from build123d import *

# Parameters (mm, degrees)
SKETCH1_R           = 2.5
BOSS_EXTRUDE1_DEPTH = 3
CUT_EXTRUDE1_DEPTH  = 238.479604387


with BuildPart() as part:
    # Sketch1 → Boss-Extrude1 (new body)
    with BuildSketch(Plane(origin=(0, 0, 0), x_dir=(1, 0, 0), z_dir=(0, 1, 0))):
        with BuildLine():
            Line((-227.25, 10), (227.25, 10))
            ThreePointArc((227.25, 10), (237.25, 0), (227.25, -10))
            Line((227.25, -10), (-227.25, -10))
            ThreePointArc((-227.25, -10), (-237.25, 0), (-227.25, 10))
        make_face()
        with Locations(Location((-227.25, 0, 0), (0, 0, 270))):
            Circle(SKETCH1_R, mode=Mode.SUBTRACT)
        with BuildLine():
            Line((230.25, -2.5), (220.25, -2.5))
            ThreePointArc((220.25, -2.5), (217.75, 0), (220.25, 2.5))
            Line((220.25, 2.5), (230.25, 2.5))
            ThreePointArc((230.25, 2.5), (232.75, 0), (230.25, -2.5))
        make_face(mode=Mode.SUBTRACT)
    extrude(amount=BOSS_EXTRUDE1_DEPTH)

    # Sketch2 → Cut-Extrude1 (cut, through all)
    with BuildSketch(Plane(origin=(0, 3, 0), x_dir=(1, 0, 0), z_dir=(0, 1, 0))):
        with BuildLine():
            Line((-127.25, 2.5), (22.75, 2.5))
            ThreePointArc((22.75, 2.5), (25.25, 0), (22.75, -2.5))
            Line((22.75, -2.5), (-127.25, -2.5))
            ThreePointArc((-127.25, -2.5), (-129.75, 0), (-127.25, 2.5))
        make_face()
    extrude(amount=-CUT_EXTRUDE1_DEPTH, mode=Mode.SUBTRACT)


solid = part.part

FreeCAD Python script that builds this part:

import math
import FreeCAD as App
import Part
import Sketcher

V = App.Vector

doc = App.newDocument("Part")
body = doc.addObject("PartDesign::Body", "Body")

sketch1 = body.newObject("Sketcher::SketchObject", "Sketch")
sketch1.AttachmentSupport = (doc.getObject("XZ_Plane"), [""])
sketch1.MapMode = "FlatFace"
sketch1.addGeometry([
    Part.LineSegment(V(227.2, -10, 0), V(-227.2, -10, 0)),
    Part.ArcOfCircle(Part.Circle(V(-227.2, 0, 0), V(0, 0, 1), 10), math.radians(90), math.radians(270)),
    Part.LineSegment(V(-227.2, 10, 0), V(227.2, 10, 0)),
    Part.ArcOfCircle(Part.Circle(V(227.2, 0, 0), V(0, 0, 1), 10), math.radians(-90), math.radians(90)),
    Part.LineSegment(V(230.2, 2.5, 0), V(220.2, 2.5, 0)),
    Part.ArcOfCircle(Part.Circle(V(220.2, 0, 0), V(0, 0, 1), 2.5), math.radians(90), math.radians(270)),
    Part.LineSegment(V(220.2, -2.5, 0), V(230.2, -2.5, 0)),
    Part.ArcOfCircle(Part.Circle(V(230.2, 0, 0), V(0, 0, 1), 2.5), math.radians(-90), math.radians(90)),
    Part.Circle(V(-227.2, 0, 0), V(0, 0, 1), 2.5),
], False)
sketch1.addConstraint([
    Sketcher.Constraint("Tangent", 0, 2, 1, 2),
    Sketcher.Constraint("Tangent", 1, 1, 2, 1),
    Sketcher.Constraint("Tangent", 2, 2, 3, 2),
    Sketcher.Constraint("Tangent", 3, 1, 0, 1),
    Sketcher.Constraint("Tangent", 4, 2, 5, 1),
    Sketcher.Constraint("Tangent", 5, 2, 6, 1),
    Sketcher.Constraint("Tangent", 6, 2, 7, 1),
    Sketcher.Constraint("Tangent", 7, 2, 4, 1),
    Sketcher.Constraint("Horizontal", 0),
    Sketcher.Constraint("Horizontal", 2),
    Sketcher.Constraint("Horizontal", 4),
    Sketcher.Constraint("Horizontal", 6),
    Sketcher.Constraint("Coincident", 8, 3, 1, 3),
    Sketcher.Constraint("Equal", 7, 8),
    Sketcher.Constraint("Symmetric", 1, 3, 3, 3, -1, 1),
    Sketcher.Constraint("PointOnObject", 5, 3, -1),
    Sketcher.Constraint("Diameter", 8, 5.0),
    Sketcher.Constraint("Radius", 1, 10.0),
    Sketcher.Constraint("DistanceX", 4, 2, 4, 1, 10.0),
    Sketcher.Constraint("DistanceX", 0, 2, 0, 1, 454.5),
    Sketcher.Constraint("DistanceX", 5, 3, 3, 3, 7.0),
])
pad1 = body.newObject("PartDesign::Pad", "Pad")
pad1.Profile = sketch1
pad1.Length = 3
pad1.Reversed = True

sketch2 = body.newObject("Sketcher::SketchObject", "Sketch001")
sketch2.AttachmentSupport = (doc.getObject("XZ_Plane"), [""])
sketch2.MapMode = "FlatFace"
sketch2.AttachmentOffset = App.Placement(V(0, 0, -3), App.Rotation())
sketch2.addGeometry([
    Part.LineSegment(V(22.8, -2.5, 0), V(-127.2, -2.5, 0)),
    Part.ArcOfCircle(Part.Circle(V(-127.2, 0, 0), V(0, 0, 1), 2.5), math.radians(90), math.radians(270)),
    Part.LineSegment(V(-127.2, 2.5, 0), V(22.8, 2.5, 0)),
    Part.ArcOfCircle(Part.Circle(V(22.8, 0, 0), V(0, 0, 1), 2.5), math.radians(-90), math.radians(90)),
], False)
sketch2.addConstraint([
    Sketcher.Constraint("Tangent", 0, 2, 1, 2),
    Sketcher.Constraint("Tangent", 1, 1, 2, 1),
    Sketcher.Constraint("Tangent", 2, 2, 3, 2),
    Sketcher.Constraint("Tangent", 3, 1, 0, 1),
    Sketcher.Constraint("Horizontal", 0),
    Sketcher.Constraint("Horizontal", 2),
    Sketcher.Constraint("PointOnObject", 1, 3, -1),
    Sketcher.Constraint("Radius", 1, 2.5),
    Sketcher.Constraint("DistanceX", 0, 2, 0, 1, 150.0),
    Sketcher.Constraint("DistanceX", 1, 3, -1, 1, 127.25),
])
pocket1 = body.newObject("PartDesign::Pocket", "Pocket")
pocket1.Profile = sketch2
pocket1.Type = "ThroughAll"
pocket1.Reversed = True

doc.recompute()
